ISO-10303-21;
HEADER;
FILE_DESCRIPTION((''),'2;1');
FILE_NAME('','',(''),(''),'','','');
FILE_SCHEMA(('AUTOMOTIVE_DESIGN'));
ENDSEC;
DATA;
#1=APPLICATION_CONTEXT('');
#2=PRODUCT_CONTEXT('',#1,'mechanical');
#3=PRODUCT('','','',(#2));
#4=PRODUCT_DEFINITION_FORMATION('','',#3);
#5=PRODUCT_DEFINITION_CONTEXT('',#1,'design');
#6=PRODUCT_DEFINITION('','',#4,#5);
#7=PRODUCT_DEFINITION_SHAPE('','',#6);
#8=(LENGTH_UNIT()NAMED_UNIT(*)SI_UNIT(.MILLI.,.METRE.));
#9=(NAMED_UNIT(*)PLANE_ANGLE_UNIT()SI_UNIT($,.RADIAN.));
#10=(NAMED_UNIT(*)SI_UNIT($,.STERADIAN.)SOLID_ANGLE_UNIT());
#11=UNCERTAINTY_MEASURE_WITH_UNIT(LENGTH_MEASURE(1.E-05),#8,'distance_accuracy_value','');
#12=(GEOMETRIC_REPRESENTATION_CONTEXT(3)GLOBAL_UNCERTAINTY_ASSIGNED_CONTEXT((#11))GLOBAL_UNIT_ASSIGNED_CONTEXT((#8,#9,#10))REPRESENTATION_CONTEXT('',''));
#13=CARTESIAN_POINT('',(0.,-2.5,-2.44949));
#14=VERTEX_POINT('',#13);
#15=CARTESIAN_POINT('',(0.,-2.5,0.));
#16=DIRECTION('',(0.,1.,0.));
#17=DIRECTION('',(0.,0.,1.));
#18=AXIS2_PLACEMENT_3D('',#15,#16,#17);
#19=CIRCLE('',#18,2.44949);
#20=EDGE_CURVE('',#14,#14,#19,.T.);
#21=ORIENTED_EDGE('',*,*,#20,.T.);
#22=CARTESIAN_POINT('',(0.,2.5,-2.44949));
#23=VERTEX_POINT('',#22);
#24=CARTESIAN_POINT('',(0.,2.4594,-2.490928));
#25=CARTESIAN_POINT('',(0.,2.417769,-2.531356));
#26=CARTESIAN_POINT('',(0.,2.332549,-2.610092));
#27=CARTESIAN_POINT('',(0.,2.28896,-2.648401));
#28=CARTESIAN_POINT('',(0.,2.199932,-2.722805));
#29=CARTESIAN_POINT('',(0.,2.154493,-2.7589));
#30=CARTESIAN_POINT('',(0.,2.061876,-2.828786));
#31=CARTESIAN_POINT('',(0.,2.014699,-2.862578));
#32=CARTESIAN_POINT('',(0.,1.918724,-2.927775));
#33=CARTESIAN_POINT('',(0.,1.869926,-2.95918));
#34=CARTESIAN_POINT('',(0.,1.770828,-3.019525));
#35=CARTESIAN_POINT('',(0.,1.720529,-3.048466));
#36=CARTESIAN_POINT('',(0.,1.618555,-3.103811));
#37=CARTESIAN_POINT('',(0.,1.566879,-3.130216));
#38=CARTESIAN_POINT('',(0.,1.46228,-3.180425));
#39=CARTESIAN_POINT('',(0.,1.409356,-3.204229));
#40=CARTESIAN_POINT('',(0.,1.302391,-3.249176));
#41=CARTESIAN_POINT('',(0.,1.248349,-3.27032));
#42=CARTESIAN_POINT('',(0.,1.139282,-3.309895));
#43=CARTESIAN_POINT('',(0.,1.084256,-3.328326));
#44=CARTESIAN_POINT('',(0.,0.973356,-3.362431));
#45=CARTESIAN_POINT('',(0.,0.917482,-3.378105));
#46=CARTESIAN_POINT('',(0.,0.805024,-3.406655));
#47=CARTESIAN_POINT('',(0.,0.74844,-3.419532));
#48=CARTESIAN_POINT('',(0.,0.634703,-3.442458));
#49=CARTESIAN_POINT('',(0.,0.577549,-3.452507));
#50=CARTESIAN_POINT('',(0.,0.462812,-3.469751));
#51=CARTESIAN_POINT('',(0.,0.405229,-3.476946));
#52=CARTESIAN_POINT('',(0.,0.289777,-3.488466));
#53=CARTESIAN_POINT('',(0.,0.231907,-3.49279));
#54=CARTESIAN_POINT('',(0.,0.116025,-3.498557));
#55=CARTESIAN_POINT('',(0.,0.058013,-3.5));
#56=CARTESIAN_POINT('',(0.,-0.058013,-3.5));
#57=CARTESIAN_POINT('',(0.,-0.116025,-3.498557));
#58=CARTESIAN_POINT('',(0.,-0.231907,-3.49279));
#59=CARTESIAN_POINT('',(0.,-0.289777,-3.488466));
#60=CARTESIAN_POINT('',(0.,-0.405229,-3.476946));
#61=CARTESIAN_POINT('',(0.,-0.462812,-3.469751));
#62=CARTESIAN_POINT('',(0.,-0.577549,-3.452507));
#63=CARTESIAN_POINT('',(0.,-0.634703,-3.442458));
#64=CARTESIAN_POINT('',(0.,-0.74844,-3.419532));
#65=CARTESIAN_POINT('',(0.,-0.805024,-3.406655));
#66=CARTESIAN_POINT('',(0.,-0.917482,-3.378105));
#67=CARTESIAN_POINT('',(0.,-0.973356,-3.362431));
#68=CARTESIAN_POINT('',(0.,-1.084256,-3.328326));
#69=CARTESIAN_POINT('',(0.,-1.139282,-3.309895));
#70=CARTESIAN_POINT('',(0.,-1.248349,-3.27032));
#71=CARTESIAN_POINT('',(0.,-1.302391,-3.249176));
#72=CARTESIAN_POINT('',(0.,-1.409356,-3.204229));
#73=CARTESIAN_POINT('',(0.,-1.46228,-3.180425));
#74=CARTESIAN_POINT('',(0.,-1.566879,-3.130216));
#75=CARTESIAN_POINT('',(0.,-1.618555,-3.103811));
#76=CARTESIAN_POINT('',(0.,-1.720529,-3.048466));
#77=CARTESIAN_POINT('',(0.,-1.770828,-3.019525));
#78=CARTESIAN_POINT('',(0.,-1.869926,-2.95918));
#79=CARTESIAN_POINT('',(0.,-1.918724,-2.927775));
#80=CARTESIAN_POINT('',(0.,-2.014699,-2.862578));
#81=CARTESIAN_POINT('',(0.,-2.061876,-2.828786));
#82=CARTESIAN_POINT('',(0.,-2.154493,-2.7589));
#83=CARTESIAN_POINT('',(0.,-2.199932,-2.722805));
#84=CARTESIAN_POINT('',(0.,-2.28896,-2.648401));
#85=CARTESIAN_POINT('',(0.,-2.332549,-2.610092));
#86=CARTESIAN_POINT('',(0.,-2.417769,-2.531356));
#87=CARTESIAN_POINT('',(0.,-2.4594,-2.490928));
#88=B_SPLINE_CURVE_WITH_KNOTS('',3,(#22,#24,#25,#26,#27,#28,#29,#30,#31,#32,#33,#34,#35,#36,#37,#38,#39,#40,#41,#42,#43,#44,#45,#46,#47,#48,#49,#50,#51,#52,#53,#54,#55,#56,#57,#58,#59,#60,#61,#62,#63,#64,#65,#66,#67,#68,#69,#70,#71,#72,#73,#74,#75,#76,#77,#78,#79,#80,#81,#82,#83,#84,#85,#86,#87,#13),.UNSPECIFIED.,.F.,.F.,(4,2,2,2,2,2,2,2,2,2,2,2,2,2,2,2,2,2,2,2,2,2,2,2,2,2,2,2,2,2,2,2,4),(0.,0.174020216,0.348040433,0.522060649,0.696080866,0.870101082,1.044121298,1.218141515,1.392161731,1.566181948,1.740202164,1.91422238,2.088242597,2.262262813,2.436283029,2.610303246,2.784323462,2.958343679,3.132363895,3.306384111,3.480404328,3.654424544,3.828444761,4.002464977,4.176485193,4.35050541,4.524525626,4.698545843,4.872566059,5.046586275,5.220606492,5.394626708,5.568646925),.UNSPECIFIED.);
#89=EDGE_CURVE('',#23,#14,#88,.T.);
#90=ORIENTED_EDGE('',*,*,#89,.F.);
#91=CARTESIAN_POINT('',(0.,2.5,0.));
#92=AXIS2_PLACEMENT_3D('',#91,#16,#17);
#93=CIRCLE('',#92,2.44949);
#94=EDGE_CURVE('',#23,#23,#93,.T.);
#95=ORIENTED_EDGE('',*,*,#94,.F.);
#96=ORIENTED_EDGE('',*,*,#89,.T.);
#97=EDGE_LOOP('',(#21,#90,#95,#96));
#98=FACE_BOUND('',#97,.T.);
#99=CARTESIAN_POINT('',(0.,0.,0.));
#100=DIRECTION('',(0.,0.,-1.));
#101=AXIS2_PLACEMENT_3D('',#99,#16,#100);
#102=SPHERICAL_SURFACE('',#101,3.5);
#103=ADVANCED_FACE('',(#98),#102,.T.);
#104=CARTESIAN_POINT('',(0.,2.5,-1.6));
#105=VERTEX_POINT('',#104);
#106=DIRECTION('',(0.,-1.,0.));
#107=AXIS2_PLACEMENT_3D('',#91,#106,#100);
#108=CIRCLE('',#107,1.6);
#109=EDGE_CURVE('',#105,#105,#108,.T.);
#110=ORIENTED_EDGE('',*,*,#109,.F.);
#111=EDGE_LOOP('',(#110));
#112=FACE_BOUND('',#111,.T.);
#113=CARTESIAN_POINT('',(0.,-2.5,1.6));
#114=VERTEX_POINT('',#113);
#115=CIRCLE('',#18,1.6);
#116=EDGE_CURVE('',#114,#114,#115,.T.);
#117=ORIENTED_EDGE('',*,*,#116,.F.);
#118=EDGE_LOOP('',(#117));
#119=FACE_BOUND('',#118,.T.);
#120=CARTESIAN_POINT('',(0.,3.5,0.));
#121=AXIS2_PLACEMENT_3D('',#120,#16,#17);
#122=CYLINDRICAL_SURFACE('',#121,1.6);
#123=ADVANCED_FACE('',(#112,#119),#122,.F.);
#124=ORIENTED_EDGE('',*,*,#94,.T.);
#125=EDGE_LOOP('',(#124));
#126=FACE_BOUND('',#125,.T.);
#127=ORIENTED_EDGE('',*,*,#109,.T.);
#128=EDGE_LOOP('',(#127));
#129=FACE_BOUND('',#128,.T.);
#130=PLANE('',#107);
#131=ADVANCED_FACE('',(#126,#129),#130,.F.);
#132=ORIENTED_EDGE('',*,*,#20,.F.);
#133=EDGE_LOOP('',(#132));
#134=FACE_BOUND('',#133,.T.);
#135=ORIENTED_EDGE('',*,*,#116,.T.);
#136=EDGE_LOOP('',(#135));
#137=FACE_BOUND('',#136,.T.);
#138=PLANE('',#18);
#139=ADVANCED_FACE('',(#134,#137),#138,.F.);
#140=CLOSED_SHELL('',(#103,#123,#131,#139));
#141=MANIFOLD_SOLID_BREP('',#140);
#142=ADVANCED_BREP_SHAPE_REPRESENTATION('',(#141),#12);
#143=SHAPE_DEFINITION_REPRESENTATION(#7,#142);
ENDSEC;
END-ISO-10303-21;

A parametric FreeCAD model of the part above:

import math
import FreeCAD as App
import Part
import Sketcher
Q = App.Units.Quantity

doc = App.newDocument("Part")
body = doc.addObject("PartDesign::Body", "Body")

# Sketch on YZ plane
sketch1 = doc.addObject("Sketcher::SketchObject", "Sketch")
body.addObject(sketch1)
sketch1.AttachmentSupport = (doc.YZ_Plane, [""])
sketch1.MapMode = "FlatFace"
sketch1.addGeometry(Part.LineSegment(App.Vector(2.5, 0, 0), App.Vector(-2.5, 0, 0)), False)
sketch1.addGeometry(Part.LineSegment(App.Vector(-2.5, 0, 0), App.Vector(-2.5, -2.4, 0)), False)
sketch1.addGeometry(Part.ArcOfCircle(Part.Circle(App.Vector(0, 0, 0), App.Vector(0, 0, 1), 3.5), math.radians(-136), math.radians(-44)), False)
sketch1.addGeometry(Part.LineSegment(App.Vector(2.5, -2.4, 0), App.Vector(2.5, 0, 0)), False)
sketch1.addConstraint(Sketcher.Constraint("Coincident", 0, 2, 1, 1))
sketch1.addConstraint(Sketcher.Constraint("Coincident", 1, 2, 2, 1))
sketch1.addConstraint(Sketcher.Constraint("Coincident", 2, 2, 3, 1))
sketch1.addConstraint(Sketcher.Constraint("Coincident", 3, 2, 0, 1))
sketch1.addConstraint(Sketcher.Constraint("Horizontal", 0))
sketch1.addConstraint(Sketcher.Constraint("Vertical", 1))
sketch1.addConstraint(Sketcher.Constraint("Vertical", 3))
sketch1.addConstraint(Sketcher.Constraint("Coincident", 2, 3, -1, 1))
sketch1.addConstraint(Sketcher.Constraint("Symmetric", 0, 2, 3, 2, -1, 1))
sketch1.addConstraint(Sketcher.Constraint("Radius", 2, Q("3.5 mm")))
sketch1.addConstraint(Sketcher.Constraint("DistanceX", 0, 2, 0, 1, Q("5 mm")))
revolution = doc.addObject("PartDesign::Revolution", "Revolution")
body.addObject(revolution)
revolution.Profile = sketch1
revolution.ReferenceAxis = (sketch1, ["H_Axis"])
revolution.Angle = 360

# Sketch on XZ plane
sketch2 = doc.addObject("Sketcher::SketchObject", "Sketch001")
body.addObject(sketch2)
sketch2.AttachmentSupport = (doc.XZ_Plane, [""])
sketch2.MapMode = "FlatFace"
sketch2.AttachmentOffset = App.Placement(App.Vector(0, 0, -3.5), App.Rotation())
sketch2.addGeometry(Part.Circle(App.Vector(0, 0, 0), App.Vector(0, 0, 1), 1.6), False)
sketch2.addConstraint(Sketcher.Constraint("Coincident", 0, 3, -1, 1))
sketch2.addConstraint(Sketcher.Constraint("Diameter", 0, Q("3.2 mm")))
doc.recompute()
hole = doc.addObject("PartDesign::Hole", "Hole")
body.addObject(hole)
hole.Profile = sketch2
hole.ThreadType = "None"
hole.Diameter = 3.2
hole.DepthType = "Dimension"
hole.Depth = 7.5
hole.DrillPoint = "Angled"
hole.DrillPointAngle = 118
hole.Reversed = True

doc.recompute()
